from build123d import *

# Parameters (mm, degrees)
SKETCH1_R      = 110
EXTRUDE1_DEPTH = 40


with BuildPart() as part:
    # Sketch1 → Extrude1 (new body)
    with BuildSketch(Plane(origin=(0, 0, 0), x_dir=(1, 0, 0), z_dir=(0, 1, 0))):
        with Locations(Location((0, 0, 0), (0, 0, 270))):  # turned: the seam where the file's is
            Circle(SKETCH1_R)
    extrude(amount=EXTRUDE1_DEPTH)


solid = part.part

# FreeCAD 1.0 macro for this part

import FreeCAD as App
import Part
import Sketcher

doc = App.newDocument("Part")
body = doc.addObject("PartDesign::Body", "Body")

# Sketch on XZ plane
sketch1 = body.newObject("Sketcher::SketchObject", "Sketch")
sketch1.AttachmentSupport = (doc.getObject("XZ_Plane"), [""])
sketch1.MapMode = "FlatFace"
sketch1.addGeometry(Part.Circle(App.Vector(0, 0, 0), App.Vector(0, 0, 1), 110), False)
sketch1.addConstraint(Sketcher.Constraint("Coincident", 0, 3, -1, 1))
sketch1.addConstraint(Sketcher.Constraint("Diameter", 0, 220.0))
pad1 = body.newObject("PartDesign::Pad", "Pad")
pad1.Profile = sketch1
pad1.Length = 40
pad1.Reversed = True

doc.recompute()
